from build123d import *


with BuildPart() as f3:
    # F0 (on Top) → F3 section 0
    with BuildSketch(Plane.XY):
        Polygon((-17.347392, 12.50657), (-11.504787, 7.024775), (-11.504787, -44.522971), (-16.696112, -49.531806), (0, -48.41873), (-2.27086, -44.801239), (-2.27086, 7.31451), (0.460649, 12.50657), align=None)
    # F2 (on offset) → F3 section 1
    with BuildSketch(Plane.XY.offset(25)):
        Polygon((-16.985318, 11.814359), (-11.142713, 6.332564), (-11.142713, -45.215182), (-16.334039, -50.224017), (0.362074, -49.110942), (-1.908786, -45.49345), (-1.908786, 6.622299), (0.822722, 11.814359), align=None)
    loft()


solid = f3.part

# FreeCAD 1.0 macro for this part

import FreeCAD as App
import Part
import Sketcher

V = App.Vector


def add_polygon(sketch, points):
    """Adds a closed chain of lines whose ends are joined by coincident constraints."""
    first, n = sketch.GeometryCount, len(points)
    for a, b in zip(points, points[1:] + points[:1]):
        sketch.addGeometry(Part.LineSegment(App.Vector(*a, 0), App.Vector(*b, 0)), False)
    for i in range(n):
        sketch.addConstraint(Sketcher.Constraint("Coincident", first + i, 2, first + (i + 1) % n, 1))

doc = App.newDocument("Part")
body = doc.addObject("PartDesign::Body", "Body")

sketch1 = body.newObject("Sketcher::SketchObject", "Sketch")
sketch1.AttachmentSupport = (doc.getObject("XY_Plane"), [""])
sketch1.MapMode = "FlatFace"
add_polygon(sketch1, [(-17.3, 12.5), (-11.5, 7), (-11.5, -44.5), (-16.7, -49.5), (0, -48.4), (-2.3, -44.8), (-2.3, 7.3), (0.5, 12.5)])
sketch1.addConstraint([
    Sketcher.Constraint("Vertical", 1),
    Sketcher.Constraint("Vertical", 5),
    Sketcher.Constraint("Horizontal", 7),
    Sketcher.Constraint("PointOnObject", 3, 2, -2),
    Sketcher.Constraint("DistanceX", 7, 2, 7, 1, 17.808041),
    Sketcher.Constraint("DistanceY", 5, 1, 5, 2, 52.115749),
    Sketcher.Constraint("DistanceY", 3, 2, 6, 2, 60.9253),
    Sketcher.Constraint("Distance", 6, 5.866739),
    Sketcher.Constraint("DistanceY", 1, 2, 1, 1, 51.547746),
    Sketcher.Constraint("DistanceY", 1, 2, -1, 1, 44.522971),
    Sketcher.Constraint("DistanceX", 2, 2, -1, 1, 16.696112),
    Sketcher.Constraint("DistanceY", 3, 2, -1, 1, 48.41873),
    Sketcher.Constraint("DistanceX", 4, 2, -1, 1, 2.27086),
    Sketcher.Constraint("DistanceY", 4, 2, -1, 1, 44.801239),
    Sketcher.Constraint("DistanceY", 2, 2, 0, 2, 56.556581),
    Sketcher.Constraint("Distance", 0, 8.011623),
])

sketch2 = body.newObject("Sketcher::SketchObject", "Sketch001")
sketch2.AttachmentSupport = (doc.getObject("XY_Plane"), [""])
sketch2.MapMode = "FlatFace"
sketch2.AttachmentOffset = App.Placement(V(0, 0, 25), App.Rotation())
add_polygon(sketch2, [(-17, 11.8), (-11.1, 6.3), (-11.1, -45.2), (-16.3, -50.2), (0.4, -49.1), (-1.9, -45.5), (-1.9, 6.6), (0.8, 11.8)])
sketch2.addConstraint([
    Sketcher.Constraint("Vertical", 1),
    Sketcher.Constraint("Vertical", 5),
    Sketcher.Constraint("Horizontal", 7),
    Sketcher.Constraint("DistanceX", 7, 2, 7, 1, 17.80804),
    Sketcher.Constraint("DistanceY", 5, 1, 5, 2, 52.115749),
    Sketcher.Constraint("DistanceY", -1, 1, 5, 2, 6.622299),
    Sketcher.Constraint("DistanceY", 3, 2, 6, 2, 60.925301),
    Sketcher.Constraint("Distance", 4, 4.271189),
    Sketcher.Constraint("Distance", 6, 5.866739),
    Sketcher.Constraint("DistanceY", 1, 2, 1, 1, 51.547746),
    Sketcher.Constraint("DistanceX", 2, 2, -1, 1, 16.334039),
    Sketcher.Constraint("DistanceX", -1, 1, 6, 2, 0.822722),
    Sketcher.Constraint("DistanceY", -1, 1, 6, 2, 11.814359),
    Sketcher.Constraint("DistanceY", 2, 2, 0, 2, 56.556581),
    Sketcher.Constraint("DistanceY", 3, 2, 1, 2, 3.89576),
    Sketcher.Constraint("Distance", 0, 8.011623),
])

additiveloft = body.newObject("PartDesign::AdditiveLoft", "AdditiveLoft")
additiveloft.Profile = sketch1
additiveloft.Sections = [sketch2]

doc.recompute()
